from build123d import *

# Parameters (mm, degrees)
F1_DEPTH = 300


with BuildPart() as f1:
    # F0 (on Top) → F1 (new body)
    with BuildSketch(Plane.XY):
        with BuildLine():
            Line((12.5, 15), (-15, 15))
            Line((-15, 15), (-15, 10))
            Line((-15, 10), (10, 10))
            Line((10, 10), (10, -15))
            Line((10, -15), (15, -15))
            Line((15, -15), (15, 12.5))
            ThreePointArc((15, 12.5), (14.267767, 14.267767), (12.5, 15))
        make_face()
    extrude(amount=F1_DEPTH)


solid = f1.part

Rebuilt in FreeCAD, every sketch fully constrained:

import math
import FreeCAD as App
import Part
import Sketcher
Q = App.Units.Quantity

doc = App.newDocument("Part")
body = doc.addObject("PartDesign::Body", "Body")

sketch1 = body.newObject("Sketcher::SketchObject", "Sketch")
sketch1.AttachmentSupport = (doc.getObject("XY_Plane"), [""])
sketch1.MapMode = "FlatFace"
sketch1.addGeometry(Part.LineSegment(App.Vector(12.5, 15, 0), App.Vector(-15, 15, 0)), False)
sketch1.addGeometry(Part.LineSegment(App.Vector(-15, 15, 0), App.Vector(-15, 10, 0)), False)
sketch1.addGeometry(Part.LineSegment(App.Vector(-15, 10, 0), App.Vector(10, 10, 0)), False)
sketch1.addGeometry(Part.LineSegment(App.Vector(10, 10, 0), App.Vector(10, -15, 0)), False)
sketch1.addGeometry(Part.LineSegment(App.Vector(10, -15, 0), App.Vector(15, -15, 0)), False)
sketch1.addGeometry(Part.LineSegment(App.Vector(15, -15, 0), App.Vector(15, 12.5, 0)), False)
sketch1.addGeometry(Part.ArcOfCircle(Part.Circle(App.Vector(12.5, 12.5, 0), App.Vector(0, 0, 1), 2.5), math.radians(0), math.radians(90)), False)
sketch1.addConstraint(Sketcher.Constraint("Coincident", 0, 2, 1, 1))
sketch1.addConstraint(Sketcher.Constraint("Coincident", 1, 2, 2, 1))
sketch1.addConstraint(Sketcher.Constraint("Coincident", 2, 2, 3, 1))
sketch1.addConstraint(Sketcher.Constraint("Coincident", 3, 2, 4, 1))
sketch1.addConstraint(Sketcher.Constraint("Coincident", 4, 2, 5, 1))
sketch1.addConstraint(Sketcher.Constraint("Tangent", 5, 2, 6, 1))
sketch1.addConstraint(Sketcher.Constraint("Tangent", 6, 2, 0, 1))
sketch1.addConstraint(Sketcher.Constraint("Horizontal", 0))
sketch1.addConstraint(Sketcher.Constraint("Vertical", 1))
sketch1.addConstraint(Sketcher.Constraint("Horizontal", 2))
sketch1.addConstraint(Sketcher.Constraint("Vertical", 3))
sketch1.addConstraint(Sketcher.Constraint("Horizontal", 4))
sketch1.addConstraint(Sketcher.Constraint("Vertical", 5))
sketch1.addConstraint(Sketcher.Constraint("Symmetric", 0, 2, 4, 2, -1, 1))
sketch1.addConstraint(Sketcher.Constraint("Equal", 4, 1))
sketch1.addConstraint(Sketcher.Constraint("Equal", 2, 3))
sketch1.addConstraint(Sketcher.Constraint("Radius", 6, Q("2.5 mm")))
sketch1.addConstraint(Sketcher.Constraint("DistanceX", 2, 1, 2, 2, Q("25 mm")))
sketch1.addConstraint(Sketcher.Constraint("DistanceX", 4, 1, 4, 2, Q("5 mm")))
pad1 = body.newObject("PartDesign::Pad", "Pad")
pad1.Profile = sketch1
pad1.Length = 300

doc.recompute()
